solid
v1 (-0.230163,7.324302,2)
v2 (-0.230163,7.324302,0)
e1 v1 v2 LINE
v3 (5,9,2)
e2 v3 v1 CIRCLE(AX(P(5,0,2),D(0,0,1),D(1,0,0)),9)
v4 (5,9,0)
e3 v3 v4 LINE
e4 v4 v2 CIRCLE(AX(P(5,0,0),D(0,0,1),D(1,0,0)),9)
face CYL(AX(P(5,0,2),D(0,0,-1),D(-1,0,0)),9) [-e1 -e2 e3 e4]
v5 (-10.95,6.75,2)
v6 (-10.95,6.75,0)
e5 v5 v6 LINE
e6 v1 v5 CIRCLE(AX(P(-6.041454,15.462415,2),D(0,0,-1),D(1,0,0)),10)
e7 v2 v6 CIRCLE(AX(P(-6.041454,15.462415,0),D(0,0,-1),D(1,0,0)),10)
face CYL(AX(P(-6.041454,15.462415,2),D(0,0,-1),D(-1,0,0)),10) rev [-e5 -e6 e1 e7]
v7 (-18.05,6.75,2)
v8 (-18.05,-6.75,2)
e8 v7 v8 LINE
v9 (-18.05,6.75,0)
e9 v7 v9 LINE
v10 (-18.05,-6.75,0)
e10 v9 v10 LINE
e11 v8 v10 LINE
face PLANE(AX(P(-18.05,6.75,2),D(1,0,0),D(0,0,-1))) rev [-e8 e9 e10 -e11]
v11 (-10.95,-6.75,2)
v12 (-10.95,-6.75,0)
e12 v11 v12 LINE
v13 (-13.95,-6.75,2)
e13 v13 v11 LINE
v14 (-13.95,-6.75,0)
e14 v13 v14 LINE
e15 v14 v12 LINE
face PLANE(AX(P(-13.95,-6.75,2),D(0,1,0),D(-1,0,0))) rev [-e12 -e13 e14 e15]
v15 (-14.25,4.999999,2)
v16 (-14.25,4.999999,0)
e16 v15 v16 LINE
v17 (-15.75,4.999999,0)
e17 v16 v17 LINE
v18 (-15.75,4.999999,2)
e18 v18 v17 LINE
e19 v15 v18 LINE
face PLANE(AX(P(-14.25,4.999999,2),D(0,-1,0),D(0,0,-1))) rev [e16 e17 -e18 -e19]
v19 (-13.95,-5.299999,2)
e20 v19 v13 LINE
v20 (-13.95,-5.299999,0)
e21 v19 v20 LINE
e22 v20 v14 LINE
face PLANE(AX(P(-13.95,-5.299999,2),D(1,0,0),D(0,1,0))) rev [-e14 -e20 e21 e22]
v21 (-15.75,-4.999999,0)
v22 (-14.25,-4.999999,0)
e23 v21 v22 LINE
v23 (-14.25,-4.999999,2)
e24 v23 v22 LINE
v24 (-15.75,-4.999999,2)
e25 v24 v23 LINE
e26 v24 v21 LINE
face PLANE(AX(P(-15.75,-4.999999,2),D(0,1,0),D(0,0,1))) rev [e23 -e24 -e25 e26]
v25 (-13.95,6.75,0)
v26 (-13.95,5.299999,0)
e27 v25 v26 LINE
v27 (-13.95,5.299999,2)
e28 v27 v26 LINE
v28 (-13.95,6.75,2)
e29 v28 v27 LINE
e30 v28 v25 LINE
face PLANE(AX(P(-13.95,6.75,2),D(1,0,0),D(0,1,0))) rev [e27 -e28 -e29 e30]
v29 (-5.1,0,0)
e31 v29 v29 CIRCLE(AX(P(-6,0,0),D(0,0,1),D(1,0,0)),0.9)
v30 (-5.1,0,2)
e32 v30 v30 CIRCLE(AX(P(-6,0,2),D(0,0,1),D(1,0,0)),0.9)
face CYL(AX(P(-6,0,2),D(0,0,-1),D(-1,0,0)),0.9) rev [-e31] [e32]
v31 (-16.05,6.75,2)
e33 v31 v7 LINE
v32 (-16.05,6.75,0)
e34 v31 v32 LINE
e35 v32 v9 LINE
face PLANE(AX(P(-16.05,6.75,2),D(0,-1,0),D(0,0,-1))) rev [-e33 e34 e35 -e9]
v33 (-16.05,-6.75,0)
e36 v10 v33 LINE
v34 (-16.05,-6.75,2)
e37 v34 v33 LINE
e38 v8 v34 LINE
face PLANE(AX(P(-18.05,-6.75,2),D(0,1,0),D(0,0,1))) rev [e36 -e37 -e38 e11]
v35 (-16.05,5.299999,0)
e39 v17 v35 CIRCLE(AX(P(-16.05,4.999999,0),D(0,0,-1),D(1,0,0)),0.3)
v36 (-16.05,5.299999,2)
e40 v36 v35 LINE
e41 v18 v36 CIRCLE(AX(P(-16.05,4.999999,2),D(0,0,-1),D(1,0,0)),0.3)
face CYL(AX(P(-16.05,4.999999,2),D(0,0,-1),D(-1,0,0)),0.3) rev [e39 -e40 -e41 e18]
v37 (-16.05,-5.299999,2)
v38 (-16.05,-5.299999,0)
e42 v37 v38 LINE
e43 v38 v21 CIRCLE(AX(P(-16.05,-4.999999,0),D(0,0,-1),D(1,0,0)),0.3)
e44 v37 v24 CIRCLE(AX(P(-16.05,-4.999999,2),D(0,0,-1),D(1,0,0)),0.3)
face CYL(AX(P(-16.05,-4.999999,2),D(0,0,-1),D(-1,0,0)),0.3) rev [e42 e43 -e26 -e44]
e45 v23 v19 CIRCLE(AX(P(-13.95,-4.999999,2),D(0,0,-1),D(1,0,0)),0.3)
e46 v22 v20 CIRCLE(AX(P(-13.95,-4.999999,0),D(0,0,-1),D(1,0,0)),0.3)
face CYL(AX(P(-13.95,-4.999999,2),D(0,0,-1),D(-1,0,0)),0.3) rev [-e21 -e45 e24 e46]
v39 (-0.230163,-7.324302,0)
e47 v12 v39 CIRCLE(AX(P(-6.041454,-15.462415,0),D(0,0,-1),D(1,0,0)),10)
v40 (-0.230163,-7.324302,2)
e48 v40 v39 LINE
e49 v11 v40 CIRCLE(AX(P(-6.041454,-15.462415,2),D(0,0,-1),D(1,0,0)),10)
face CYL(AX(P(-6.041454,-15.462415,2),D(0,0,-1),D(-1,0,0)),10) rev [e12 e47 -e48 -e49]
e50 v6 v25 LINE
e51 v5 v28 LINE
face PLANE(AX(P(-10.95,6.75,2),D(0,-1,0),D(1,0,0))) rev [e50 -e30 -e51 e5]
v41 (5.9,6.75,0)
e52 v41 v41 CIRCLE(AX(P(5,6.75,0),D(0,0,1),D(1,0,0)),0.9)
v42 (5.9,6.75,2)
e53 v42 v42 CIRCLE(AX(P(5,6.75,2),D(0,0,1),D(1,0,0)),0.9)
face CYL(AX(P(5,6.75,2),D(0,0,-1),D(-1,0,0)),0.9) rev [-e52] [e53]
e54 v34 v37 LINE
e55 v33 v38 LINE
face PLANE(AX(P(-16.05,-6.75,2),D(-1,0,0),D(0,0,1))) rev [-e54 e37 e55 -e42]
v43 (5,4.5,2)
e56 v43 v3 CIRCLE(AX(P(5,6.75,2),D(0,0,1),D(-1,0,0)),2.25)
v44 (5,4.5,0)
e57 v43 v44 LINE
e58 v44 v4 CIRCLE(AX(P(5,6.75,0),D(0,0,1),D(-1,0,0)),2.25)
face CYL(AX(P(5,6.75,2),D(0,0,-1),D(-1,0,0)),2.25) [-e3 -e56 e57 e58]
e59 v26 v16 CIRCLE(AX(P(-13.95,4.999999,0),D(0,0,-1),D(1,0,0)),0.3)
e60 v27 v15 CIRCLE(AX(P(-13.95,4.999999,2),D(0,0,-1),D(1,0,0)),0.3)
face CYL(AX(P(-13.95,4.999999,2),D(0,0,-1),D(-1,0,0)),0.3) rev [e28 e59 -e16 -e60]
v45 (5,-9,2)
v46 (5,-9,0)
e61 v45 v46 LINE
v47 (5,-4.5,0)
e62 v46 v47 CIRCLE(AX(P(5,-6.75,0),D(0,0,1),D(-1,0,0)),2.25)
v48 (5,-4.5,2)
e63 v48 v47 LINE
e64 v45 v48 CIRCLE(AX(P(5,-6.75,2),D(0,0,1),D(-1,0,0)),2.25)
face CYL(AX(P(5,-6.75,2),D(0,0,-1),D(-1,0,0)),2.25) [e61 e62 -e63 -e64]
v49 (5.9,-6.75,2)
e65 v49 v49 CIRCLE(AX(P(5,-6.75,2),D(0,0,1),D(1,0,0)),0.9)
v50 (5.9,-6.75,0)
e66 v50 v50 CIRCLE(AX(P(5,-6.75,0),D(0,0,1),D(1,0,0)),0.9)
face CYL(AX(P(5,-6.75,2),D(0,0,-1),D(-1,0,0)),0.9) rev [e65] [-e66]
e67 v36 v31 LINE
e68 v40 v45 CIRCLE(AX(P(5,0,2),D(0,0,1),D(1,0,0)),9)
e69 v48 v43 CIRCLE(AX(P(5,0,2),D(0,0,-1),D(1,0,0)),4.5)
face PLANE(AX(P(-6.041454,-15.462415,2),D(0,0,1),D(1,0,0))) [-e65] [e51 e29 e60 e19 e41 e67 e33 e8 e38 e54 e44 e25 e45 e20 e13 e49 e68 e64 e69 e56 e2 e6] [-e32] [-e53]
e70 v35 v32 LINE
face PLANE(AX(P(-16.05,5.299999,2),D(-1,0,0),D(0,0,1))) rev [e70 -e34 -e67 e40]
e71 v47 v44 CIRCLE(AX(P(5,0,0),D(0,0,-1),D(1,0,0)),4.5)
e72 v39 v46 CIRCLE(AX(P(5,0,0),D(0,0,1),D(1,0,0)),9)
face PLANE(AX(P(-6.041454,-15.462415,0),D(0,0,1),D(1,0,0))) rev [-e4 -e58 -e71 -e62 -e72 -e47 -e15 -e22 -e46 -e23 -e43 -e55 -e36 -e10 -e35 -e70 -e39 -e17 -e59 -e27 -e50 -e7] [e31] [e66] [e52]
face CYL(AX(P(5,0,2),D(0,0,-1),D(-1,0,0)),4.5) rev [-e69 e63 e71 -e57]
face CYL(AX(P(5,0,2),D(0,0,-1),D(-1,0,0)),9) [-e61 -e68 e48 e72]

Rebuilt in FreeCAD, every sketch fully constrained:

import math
import FreeCAD as App
import Part
import Sketcher
Q = App.Units.Quantity

doc = App.newDocument("Part")
body = doc.addObject("PartDesign::Body", "Body")

sketch1 = body.newObject("Sketcher::SketchObject", "Sketch")
sketch1.AttachmentSupport = (doc.getObject("XY_Plane"), [""])
sketch1.MapMode = "FlatFace"
sketch1.addGeometry(Part.LineSegment(App.Vector(-13.95, -5.3, 0), App.Vector(-13.95, -6.75, 0)), False)
sketch1.addGeometry(Part.LineSegment(App.Vector(-13.95, -6.75, 0), App.Vector(-10.95, -6.75, 0)), False)
sketch1.addGeometry(Part.ArcOfCircle(Part.Circle(App.Vector(-6.04, -15.46, 0), App.Vector(0, 0, 1), 10), math.radians(54), math.radians(119)), False)
sketch1.addGeometry(Part.ArcOfCircle(Part.Circle(App.Vector(5, 0, 0), App.Vector(0, 0, 1), 9), math.radians(-126), math.radians(-90)), False)
sketch1.addGeometry(Part.ArcOfCircle(Part.Circle(App.Vector(5, -6.75, 0), App.Vector(0, 0, 1), 2.25), math.radians(-90), math.radians(90)), False)
sketch1.addGeometry(Part.ArcOfCircle(Part.Circle(App.Vector(5, 0, 0), App.Vector(0, 0, 1), 4.5), math.radians(90), math.radians(270)), False)
sketch1.addGeometry(Part.ArcOfCircle(Part.Circle(App.Vector(5, 6.75, 0), App.Vector(0, 0, 1), 2.25), math.radians(-90), math.radians(90)), False)
sketch1.addGeometry(Part.ArcOfCircle(Part.Circle(App.Vector(5, 0, 0), App.Vector(0, 0, 1), 9), math.radians(90), math.radians(126)), False)
sketch1.addGeometry(Part.ArcOfCircle(Part.Circle(App.Vector(-6.04, 15.46, 0), App.Vector(0, 0, 1), 10), math.radians(-119), math.radians(-54)), False)
sketch1.addGeometry(Part.LineSegment(App.Vector(-10.95, 6.75, 0), App.Vector(-13.95, 6.75, 0)), False)
sketch1.addGeometry(Part.LineSegment(App.Vector(-13.95, 6.75, 0), App.Vector(-13.95, 5.3, 0)), False)
sketch1.addGeometry(Part.ArcOfCircle(Part.Circle(App.Vector(-13.95, 5, 0), App.Vector(0, 0, 1), 0.3), math.radians(180), math.radians(450)), False)
sketch1.addGeometry(Part.LineSegment(App.Vector(-14.25, 5, 0), App.Vector(-15.75, 5, 0)), False)
sketch1.addGeometry(Part.ArcOfCircle(Part.Circle(App.Vector(-16.05, 5, 0), App.Vector(0, 0, 1), 0.3), math.radians(90), math.radians(360)), False)
sketch1.addGeometry(Part.LineSegment(App.Vector(-16.05, 5.3, 0), App.Vector(-16.05, 6.75, 0)), False)
sketch1.addGeometry(Part.LineSegment(App.Vector(-16.05, 6.75, 0), App.Vector(-18.05, 6.75, 0)), False)
sketch1.addGeometry(Part.LineSegment(App.Vector(-18.05, 6.75, 0), App.Vector(-18.05, -6.75, 0)), False)
sketch1.addGeometry(Part.LineSegment(App.Vector(-18.05, -6.75, 0), App.Vector(-16.05, -6.75, 0)), False)
sketch1.addGeometry(Part.LineSegment(App.Vector(-16.05, -6.75, 0), App.Vector(-16.05, -5.3, 0)), False)
sketch1.addGeometry(Part.ArcOfCircle(Part.Circle(App.Vector(-16.05, -5, 0), App.Vector(0, 0, 1), 0.3), math.radians(0), math.radians(270)), False)
sketch1.addGeometry(Part.LineSegment(App.Vector(-15.75, -5, 0), App.Vector(-14.25, -5, 0)), False)
sketch1.addGeometry(Part.ArcOfCircle(Part.Circle(App.Vector(-13.95, -5, 0), App.Vector(0, 0, 1), 0.3), math.radians(-90), math.radians(180)), False)
sketch1.addGeometry(Part.Circle(App.Vector(5, -6.75, 0), App.Vector(0, 0, 1), 0.9), False)
sketch1.addGeometry(Part.Circle(App.Vector(-6, 0, 0), App.Vector(0, 0, 1), 0.9), False)
sketch1.addGeometry(Part.Circle(App.Vector(5, 6.75, 0), App.Vector(0, 0, 1), 0.9), False)
sketch1.addConstraint(Sketcher.Constraint("Coincident", 0, 2, 1, 1))
sketch1.addConstraint(Sketcher.Constraint("Coincident", 1, 2, 2, 2))
sketch1.addConstraint(Sketcher.Constraint("Tangent", 2, 1, 3, 1))
sketch1.addConstraint(Sketcher.Constraint("Tangent", 3, 2, 4, 1))
sketch1.addConstraint(Sketcher.Constraint("Tangent", 4, 2, 5, 2))
sketch1.addConstraint(Sketcher.Constraint("Tangent", 5, 1, 6, 1))
sketch1.addConstraint(Sketcher.Constraint("Tangent", 6, 2, 7, 1))
sketch1.addConstraint(Sketcher.Constraint("Tangent", 7, 2, 8, 2))
sketch1.addConstraint(Sketcher.Constraint("Coincident", 8, 1, 9, 1))
sketch1.addConstraint(Sketcher.Constraint("Coincident", 9, 2, 10, 1))
sketch1.addConstraint(Sketcher.Constraint("Coincident", 10, 2, 11, 2))
sketch1.addConstraint(Sketcher.Constraint("Coincident", 11, 1, 12, 1))
sketch1.addConstraint(Sketcher.Constraint("Coincident", 12, 2, 13, 2))
sketch1.addConstraint(Sketcher.Constraint("Coincident", 13, 1, 14, 1))
sketch1.addConstraint(Sketcher.Constraint("Coincident", 14, 2, 15, 1))
sketch1.addConstraint(Sketcher.Constraint("Coincident", 15, 2, 16, 1))
sketch1.addConstraint(Sketcher.Constraint("Coincident", 16, 2, 17, 1))
sketch1.addConstraint(Sketcher.Constraint("Coincident", 17, 2, 18, 1))
sketch1.addConstraint(Sketcher.Constraint("Coincident", 18, 2, 19, 2))
sketch1.addConstraint(Sketcher.Constraint("Coincident", 19, 1, 20, 1))
sketch1.addConstraint(Sketcher.Constraint("Coincident", 20, 2, 21, 2))
sketch1.addConstraint(Sketcher.Constraint("Coincident", 21, 1, 0, 1))
sketch1.addConstraint(Sketcher.Constraint("Vertical", 0))
sketch1.addConstraint(Sketcher.Constraint("Horizontal", 1))
sketch1.addConstraint(Sketcher.Constraint("Horizontal", 9))
sketch1.addConstraint(Sketcher.Constraint("Vertical", 10))
sketch1.addConstraint(Sketcher.Constraint("Horizontal", 12))
sketch1.addConstraint(Sketcher.Constraint("Vertical", 14))
sketch1.addConstraint(Sketcher.Constraint("Horizontal", 15))
sketch1.addConstraint(Sketcher.Constraint("Vertical", 16))
sketch1.addConstraint(Sketcher.Constraint("Horizontal", 17))
sketch1.addConstraint(Sketcher.Constraint("Vertical", 18))
sketch1.addConstraint(Sketcher.Constraint("Horizontal", 20))
sketch1.addConstraint(Sketcher.Constraint("Coincident", 5, 3, 3, 3))
sketch1.addConstraint(Sketcher.Constraint("Coincident", 7, 3, 3, 3))
sketch1.addConstraint(Sketcher.Constraint("Coincident", 22, 3, 4, 3))
sketch1.addConstraint(Sketcher.Constraint("Coincident", 24, 3, 6, 3))
sketch1.addConstraint(Sketcher.Constraint("Equal", 4, 6))
sketch1.addConstraint(Sketcher.Constraint("Equal", 2, 8))
sketch1.addConstraint(Sketcher.Constraint("Equal", 11, 13))
sketch1.addConstraint(Sketcher.Constraint("Equal", 13, 19))
sketch1.addConstraint(Sketcher.Constraint("Equal", 19, 21))
sketch1.addConstraint(Sketcher.Constraint("Equal", 22, 23))
sketch1.addConstraint(Sketcher.Constraint("Equal", 23, 24))
sketch1.addConstraint(Sketcher.Constraint("Symmetric", 4, 3, 6, 3, -1))
sketch1.addConstraint(Sketcher.Constraint("Symmetric", 13, 3, 19, 3, -1))
sketch1.addConstraint(Sketcher.Constraint("Symmetric", 11, 3, 21, 3, -1))
sketch1.addConstraint(Sketcher.Constraint("Symmetric", 1, 2, 8, 1, -1))
sketch1.addConstraint(Sketcher.Constraint("Symmetric", 14, 2, 17, 2, -1))
sketch1.addConstraint(Sketcher.Constraint("PointOnObject", 23, 3, -1))
sketch1.addConstraint(Sketcher.Constraint("Horizontal", 11, 3, 13, 3))
sketch1.addConstraint(Sketcher.Constraint("Horizontal", 22, 3, 0, 2))
sketch1.addConstraint(Sketcher.Constraint("Horizontal", 13, 3, 11, 1))
sketch1.addConstraint(Sketcher.Constraint("Horizontal", 9, 2, 14, 2))
sketch1.addConstraint(Sketcher.Constraint("Horizontal", 21, 3, 19, 1))
sketch1.addConstraint(Sketcher.Constraint("Vertical", 3, 3, 4, 3))
sketch1.addConstraint(Sketcher.Constraint("Vertical", 21, 3, 0, 2))
sketch1.addConstraint(Sketcher.Constraint("Vertical", 0, 2, 9, 2))
sketch1.addConstraint(Sketcher.Constraint("Vertical", 19, 3, 13, 1))
sketch1.addConstraint(Sketcher.Constraint("Radius", 2, Q("10 mm")))
sketch1.addConstraint(Sketcher.Constraint("Radius", 3, Q("9 mm")))
sketch1.addConstraint(Sketcher.Constraint("Diameter", 22, Q("1.8 mm")))
sketch1.addConstraint(Sketcher.Constraint("Radius", 5, Q("4.5 mm")))
sketch1.addConstraint(Sketcher.Constraint("Radius", 11, Q("0.3 mm")))
sketch1.addConstraint(Sketcher.Constraint("DistanceX", 1, 1, 1, 2, Q("3 mm")))
sketch1.addConstraint(Sketcher.Constraint("DistanceX", 15, 2, 15, 1, Q("2 mm")))
sketch1.addConstraint(Sketcher.Constraint("DistanceX", 12, 2, 12, 1, Q("1.5 mm")))
sketch1.addConstraint(Sketcher.Constraint("DistanceX", -1, 1, 3, 3, Q("5 mm")))
sketch1.addConstraint(Sketcher.Constraint("DistanceY", -1, 1, 11, 3, Q("4.999999 mm")))
sketch1.addConstraint(Sketcher.Constraint("DistanceX", 23, 3, -1, 1, Q("6 mm")))
sketch1.addConstraint(Sketcher.Constraint("DistanceX", 11, 3, -1, 1, Q("13.95 mm")))
pad1 = body.newObject("PartDesign::Pad", "Pad")
pad1.Profile = sketch1
pad1.Length = 2

doc.recompute()
